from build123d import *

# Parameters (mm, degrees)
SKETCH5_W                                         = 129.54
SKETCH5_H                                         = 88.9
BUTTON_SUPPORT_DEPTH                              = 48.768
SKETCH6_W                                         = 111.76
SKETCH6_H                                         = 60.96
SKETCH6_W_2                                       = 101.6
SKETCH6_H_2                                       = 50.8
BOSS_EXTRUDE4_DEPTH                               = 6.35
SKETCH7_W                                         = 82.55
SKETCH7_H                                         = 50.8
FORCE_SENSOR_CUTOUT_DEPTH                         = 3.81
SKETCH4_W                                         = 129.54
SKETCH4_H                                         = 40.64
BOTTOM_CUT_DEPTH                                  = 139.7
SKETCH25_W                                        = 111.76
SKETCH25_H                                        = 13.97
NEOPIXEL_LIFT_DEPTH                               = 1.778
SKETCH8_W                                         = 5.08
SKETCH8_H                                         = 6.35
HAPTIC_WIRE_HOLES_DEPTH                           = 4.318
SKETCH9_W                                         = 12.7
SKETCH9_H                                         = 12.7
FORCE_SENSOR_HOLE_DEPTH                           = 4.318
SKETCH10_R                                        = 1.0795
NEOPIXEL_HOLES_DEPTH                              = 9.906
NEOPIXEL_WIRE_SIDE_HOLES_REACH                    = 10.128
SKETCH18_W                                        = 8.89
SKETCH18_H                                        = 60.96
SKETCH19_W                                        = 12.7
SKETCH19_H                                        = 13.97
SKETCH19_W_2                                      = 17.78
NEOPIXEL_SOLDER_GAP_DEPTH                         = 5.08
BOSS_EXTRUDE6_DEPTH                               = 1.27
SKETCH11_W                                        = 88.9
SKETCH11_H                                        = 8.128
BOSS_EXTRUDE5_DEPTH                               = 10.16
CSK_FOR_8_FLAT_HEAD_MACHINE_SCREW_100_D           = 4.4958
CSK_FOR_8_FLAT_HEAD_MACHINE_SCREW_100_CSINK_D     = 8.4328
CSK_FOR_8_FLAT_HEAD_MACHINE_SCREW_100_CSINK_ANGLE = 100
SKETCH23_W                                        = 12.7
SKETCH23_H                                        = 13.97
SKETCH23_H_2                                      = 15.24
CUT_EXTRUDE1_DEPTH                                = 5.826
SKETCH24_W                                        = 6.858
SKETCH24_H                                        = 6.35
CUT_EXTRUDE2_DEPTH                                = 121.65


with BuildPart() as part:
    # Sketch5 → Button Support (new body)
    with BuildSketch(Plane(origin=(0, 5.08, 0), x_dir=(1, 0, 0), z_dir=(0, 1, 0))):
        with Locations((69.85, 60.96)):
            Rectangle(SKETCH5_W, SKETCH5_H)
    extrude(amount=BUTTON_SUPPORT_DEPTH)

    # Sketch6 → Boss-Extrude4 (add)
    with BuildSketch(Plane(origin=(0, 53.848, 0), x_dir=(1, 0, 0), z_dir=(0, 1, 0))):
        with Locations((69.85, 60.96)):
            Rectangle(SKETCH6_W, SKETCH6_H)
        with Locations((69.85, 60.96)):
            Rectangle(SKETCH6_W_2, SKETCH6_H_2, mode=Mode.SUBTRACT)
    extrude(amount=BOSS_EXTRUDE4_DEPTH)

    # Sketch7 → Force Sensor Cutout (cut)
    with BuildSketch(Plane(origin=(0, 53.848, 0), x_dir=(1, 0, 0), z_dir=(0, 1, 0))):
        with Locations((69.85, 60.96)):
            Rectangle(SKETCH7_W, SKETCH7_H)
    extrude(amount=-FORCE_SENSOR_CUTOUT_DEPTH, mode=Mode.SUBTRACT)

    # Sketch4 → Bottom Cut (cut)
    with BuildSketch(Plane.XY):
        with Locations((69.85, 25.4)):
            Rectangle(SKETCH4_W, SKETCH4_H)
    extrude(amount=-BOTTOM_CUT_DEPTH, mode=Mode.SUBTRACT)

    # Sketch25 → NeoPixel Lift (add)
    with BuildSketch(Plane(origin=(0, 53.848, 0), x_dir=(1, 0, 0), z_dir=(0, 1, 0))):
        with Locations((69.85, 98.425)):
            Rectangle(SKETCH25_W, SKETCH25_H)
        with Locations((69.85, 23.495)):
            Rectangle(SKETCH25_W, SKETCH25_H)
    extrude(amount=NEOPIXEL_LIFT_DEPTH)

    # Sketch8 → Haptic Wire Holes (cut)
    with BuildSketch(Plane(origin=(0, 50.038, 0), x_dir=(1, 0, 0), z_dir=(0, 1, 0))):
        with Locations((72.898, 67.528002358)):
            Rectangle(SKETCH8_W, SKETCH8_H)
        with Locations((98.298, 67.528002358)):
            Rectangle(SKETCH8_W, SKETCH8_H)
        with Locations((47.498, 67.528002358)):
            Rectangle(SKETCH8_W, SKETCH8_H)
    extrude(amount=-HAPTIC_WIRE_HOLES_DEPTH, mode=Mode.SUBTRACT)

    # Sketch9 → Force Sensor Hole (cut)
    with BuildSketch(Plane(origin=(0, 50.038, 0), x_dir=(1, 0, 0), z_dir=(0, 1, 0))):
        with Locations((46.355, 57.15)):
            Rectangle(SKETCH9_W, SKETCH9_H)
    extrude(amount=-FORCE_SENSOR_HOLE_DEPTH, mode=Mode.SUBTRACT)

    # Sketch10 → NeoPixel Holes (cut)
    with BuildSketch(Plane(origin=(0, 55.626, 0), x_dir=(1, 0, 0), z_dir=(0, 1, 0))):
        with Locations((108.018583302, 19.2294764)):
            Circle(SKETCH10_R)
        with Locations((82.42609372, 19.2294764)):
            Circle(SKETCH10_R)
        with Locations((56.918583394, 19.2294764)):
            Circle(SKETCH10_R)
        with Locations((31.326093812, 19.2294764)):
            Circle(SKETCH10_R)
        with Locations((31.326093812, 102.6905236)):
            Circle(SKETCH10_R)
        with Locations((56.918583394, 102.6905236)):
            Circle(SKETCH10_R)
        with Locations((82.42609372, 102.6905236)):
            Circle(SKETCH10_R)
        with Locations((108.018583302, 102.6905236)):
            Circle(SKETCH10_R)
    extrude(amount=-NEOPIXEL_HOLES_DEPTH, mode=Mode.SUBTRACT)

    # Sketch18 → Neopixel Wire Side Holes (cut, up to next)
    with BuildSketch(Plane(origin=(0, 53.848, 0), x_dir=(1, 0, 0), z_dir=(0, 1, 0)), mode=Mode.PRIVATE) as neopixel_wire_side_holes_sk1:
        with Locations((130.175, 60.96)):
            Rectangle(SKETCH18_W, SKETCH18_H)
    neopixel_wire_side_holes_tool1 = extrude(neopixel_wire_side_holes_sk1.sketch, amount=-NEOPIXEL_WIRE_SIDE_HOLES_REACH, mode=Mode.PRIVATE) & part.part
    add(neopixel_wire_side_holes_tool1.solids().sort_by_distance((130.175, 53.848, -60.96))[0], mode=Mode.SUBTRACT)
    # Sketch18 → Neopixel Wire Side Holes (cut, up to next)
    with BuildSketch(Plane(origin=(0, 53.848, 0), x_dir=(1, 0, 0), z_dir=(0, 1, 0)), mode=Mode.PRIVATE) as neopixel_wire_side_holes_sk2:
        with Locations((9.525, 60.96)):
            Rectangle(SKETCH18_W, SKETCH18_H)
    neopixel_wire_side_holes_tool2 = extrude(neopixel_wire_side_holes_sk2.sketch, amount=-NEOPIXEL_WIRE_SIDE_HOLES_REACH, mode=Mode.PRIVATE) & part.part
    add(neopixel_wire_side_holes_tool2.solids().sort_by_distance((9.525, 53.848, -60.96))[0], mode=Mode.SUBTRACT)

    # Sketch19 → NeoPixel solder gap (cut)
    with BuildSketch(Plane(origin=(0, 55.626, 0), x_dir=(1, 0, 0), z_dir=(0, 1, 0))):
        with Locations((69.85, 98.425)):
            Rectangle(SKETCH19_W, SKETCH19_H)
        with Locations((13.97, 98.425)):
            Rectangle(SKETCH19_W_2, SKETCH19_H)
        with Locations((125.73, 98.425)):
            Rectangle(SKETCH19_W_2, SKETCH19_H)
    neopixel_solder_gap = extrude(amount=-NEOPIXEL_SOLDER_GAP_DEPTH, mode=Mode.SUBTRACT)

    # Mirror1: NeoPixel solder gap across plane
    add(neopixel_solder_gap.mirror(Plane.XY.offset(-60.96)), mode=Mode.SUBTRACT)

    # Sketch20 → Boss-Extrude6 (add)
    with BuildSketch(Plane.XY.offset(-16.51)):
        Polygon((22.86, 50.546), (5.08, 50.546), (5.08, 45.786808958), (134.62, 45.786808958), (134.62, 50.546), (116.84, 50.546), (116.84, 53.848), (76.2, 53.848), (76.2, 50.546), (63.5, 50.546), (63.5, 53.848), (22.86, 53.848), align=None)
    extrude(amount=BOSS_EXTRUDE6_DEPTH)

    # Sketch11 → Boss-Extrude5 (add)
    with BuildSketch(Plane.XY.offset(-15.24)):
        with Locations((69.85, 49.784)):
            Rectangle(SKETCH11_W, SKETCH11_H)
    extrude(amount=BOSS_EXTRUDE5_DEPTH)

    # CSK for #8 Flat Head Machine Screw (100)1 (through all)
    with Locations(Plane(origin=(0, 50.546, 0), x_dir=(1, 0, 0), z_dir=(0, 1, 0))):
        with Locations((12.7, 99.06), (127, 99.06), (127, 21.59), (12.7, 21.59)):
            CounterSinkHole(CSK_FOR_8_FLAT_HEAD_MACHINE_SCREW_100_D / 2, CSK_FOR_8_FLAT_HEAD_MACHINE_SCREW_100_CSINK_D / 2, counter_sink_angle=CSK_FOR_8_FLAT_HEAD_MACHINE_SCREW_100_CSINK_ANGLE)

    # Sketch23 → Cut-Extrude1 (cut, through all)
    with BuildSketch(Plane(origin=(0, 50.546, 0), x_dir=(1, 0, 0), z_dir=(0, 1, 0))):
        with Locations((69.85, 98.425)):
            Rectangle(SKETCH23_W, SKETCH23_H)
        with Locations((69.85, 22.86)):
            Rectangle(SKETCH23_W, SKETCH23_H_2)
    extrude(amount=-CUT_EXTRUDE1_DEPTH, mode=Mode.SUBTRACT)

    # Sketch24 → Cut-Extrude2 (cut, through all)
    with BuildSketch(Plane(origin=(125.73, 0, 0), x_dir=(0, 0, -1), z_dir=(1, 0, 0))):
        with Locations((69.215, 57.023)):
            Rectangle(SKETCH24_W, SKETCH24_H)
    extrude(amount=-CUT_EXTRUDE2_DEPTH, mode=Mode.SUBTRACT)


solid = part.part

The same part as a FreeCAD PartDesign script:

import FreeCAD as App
import Part
import Sketcher

V = App.Vector
Q = App.Units.Quantity

doc = App.newDocument("Part")
params = doc.addObject("Spreadsheet::Sheet", "Params")
for row, (alias, value) in enumerate([
    ("sketch1_width", "5.1 in"),
    ("sketch1_height", "3.5 in"),
    ("pad1_length", "1.92 in"),
    ("sketch2_width", "4 in"),
    ("sketch2_height", "2 in"),
    ("sketch2_width2", "4.4 in"),
    ("sketch2_height2", "2.4 in"),
    ("pad2_length", "0.25 in"),
    ("sketch3_height", "2 in"),
    ("sketch3_width", "3.25 in"),
    ("pocket1_length", "0.15 in"),
    ("sketch4_width", "5.1 in"),
    ("sketch4_height", "1.6 in"),
    ("pocket2_length", "5.5 in"),
    ("sketch5_width", "4.4 in"),
    ("sketch5_height", "0.55 in"),
    ("pad3_length", "0.07 in"),
    ("sketch6_width", "0.2 in"),
    ("sketch6_height", "0.25 in"),
    ("pocket3_length", "0.17 in"),
    ("sketch7_width", "0.5 in"),
    ("pocket4_length", "0.17 in"),
    ("sketch8_diameter", "0.085 in"),
    ("pocket5_length", "0.39 in"),
    ("sketch9_height", "2.4 in"),
    ("sketch9_width", "0.35 in"),
    ("sketch10_height", "2.4 in"),
    ("sketch10_width", "0.35 in"),
    ("sketch11_width", "0.5 in"),
    ("sketch11_width2", "0.7 in"),
    ("sketch11_height", "0.55 in"),
    ("pocket8_length", "0.2 in"),
    ("sketch12_width", "0.7 in"),
    ("sketch12_width2", "5.1 in"),
    ("sketch12_width3", "1.6 in"),
    ("sketch12_height", "0.13 in"),
    ("pad4_length", "0.05 in"),
    ("sketch13_width", "3.5 in"),
    ("sketch13_height", "0.32 in"),
    ("pad5_length", "0.4 in"),
    ("sketch14_diameter", "0.177 in"),
    ("hole_diameter", "0.177 in"),
    ("hole_csink_diameter", "0.332 in"),
    ("sketch15_width", "0.5 in"),
    ("sketch15_height", "0.6 in"),
    ("sketch15_height2", "0.55 in"),
    ("sketch16_width", "0.25 in"),
    ("sketch16_height", "0.27 in"),
], start=1):
    params.set(f"A{row}", alias)
    params.set(f"B{row}", "=" + value)
    params.setAlias(f"B{row}", alias)

body = doc.addObject("PartDesign::Body", "Body")

# Sketch on XZ plane
sketch1 = doc.addObject("Sketcher::SketchObject", "Sketch")
body.addObject(sketch1)
sketch1.AttachmentSupport = (doc.XZ_Plane, [""])
sketch1.MapMode = "FlatFace"
sketch1.AttachmentOffset = App.Placement(V(0, 0, -0.2 * 25.4), App.Rotation())
sketch1.addGeometry([
    Part.LineSegment(V(5, -105, 0), V(5, -17, 0)),
    Part.LineSegment(V(5, -17, 0), V(135, -17, 0)),
    Part.LineSegment(V(135, -17, 0), V(135, -105, 0)),
    Part.LineSegment(V(135, -105, 0), V(5, -105, 0)),
], False)
sketch1.addConstraint([
    Sketcher.Constraint("Coincident", 0, 2, 1, 1),
    Sketcher.Constraint("Coincident", 1, 2, 2, 1),
    Sketcher.Constraint("Coincident", 2, 2, 3, 1),
    Sketcher.Constraint("Coincident", 3, 2, 0, 1),
    Sketcher.Constraint("Vertical", 0),
    Sketcher.Constraint("Horizontal", 1),
    Sketcher.Constraint("Vertical", 2),
    Sketcher.Constraint("Horizontal", 3),
    Sketcher.Constraint("DistanceX", 1, 1, 1, 2, Q("5.1 in")),
    Sketcher.Constraint("DistanceY", 0, 1, 0, 2, Q("3.5 in")),
    Sketcher.Constraint("DistanceX", -1, 1, 0, 2, Q("0.2 in")),
    Sketcher.Constraint("DistanceY", 0, 2, -1, 1, Q("0.65 in")),
])
sketch1.setExpression("Constraints[8]", "Params.sketch1_width")
sketch1.setExpression("Constraints[9]", "Params.sketch1_height")
pad1 = doc.addObject("PartDesign::Pad", "Pad")
body.addObject(pad1)
pad1.Profile = sketch1
pad1.setExpression("Length", "Params.pad1_length")
pad1.Reversed = True

# Sketch on XZ plane
sketch2 = doc.addObject("Sketcher::SketchObject", "Sketch001")
body.addObject(sketch2)
sketch2.AttachmentSupport = (doc.XZ_Plane, [""])
sketch2.MapMode = "FlatFace"
sketch2.AttachmentOffset = App.Placement(V(0, 0, -2.12 * 25.4), App.Rotation())
sketch2.addGeometry([
    Part.LineSegment(V(14, -91, 0), V(14, -30, 0)),  # 0
    Part.LineSegment(V(14, -30, 0), V(126, -30, 0)),  # 1
    Part.LineSegment(V(126, -30, 0), V(126, -91, 0)),  # 2
    Part.LineSegment(V(126, -91, 0), V(14, -91, 0)),  # 3
    Part.LineSegment(V(121, -36, 0), V(19, -36, 0)),  # 4
    Part.LineSegment(V(19, -36, 0), V(19, -86, 0)),  # 5
    Part.LineSegment(V(19, -86, 0), V(121, -86, 0)),  # 6
    Part.LineSegment(V(121, -86, 0), V(121, -36, 0)),  # 7
], False)
sketch2.addConstraint([
    Sketcher.Constraint("Coincident", 0, 2, 1, 1),
    Sketcher.Constraint("Coincident", 1, 2, 2, 1),
    Sketcher.Constraint("Coincident", 2, 2, 3, 1),
    Sketcher.Constraint("Coincident", 3, 2, 0, 1),
    Sketcher.Constraint("Coincident", 4, 2, 5, 1),
    Sketcher.Constraint("Coincident", 5, 2, 6, 1),
    Sketcher.Constraint("Coincident", 6, 2, 7, 1),
    Sketcher.Constraint("Coincident", 7, 2, 4, 1),
    Sketcher.Constraint("Vertical", 0),
    Sketcher.Constraint("Horizontal", 1),
    Sketcher.Constraint("Vertical", 2),
    Sketcher.Constraint("Horizontal", 3),
    Sketcher.Constraint("Horizontal", 4),
    Sketcher.Constraint("Vertical", 5),
    Sketcher.Constraint("Horizontal", 6),
    Sketcher.Constraint("Vertical", 7),
    Sketcher.Constraint("DistanceX", 4, 2, 4, 1, Q("4 in")),
    Sketcher.Constraint("DistanceY", 5, 2, 5, 1, Q("2 in")),
    Sketcher.Constraint("DistanceX", 1, 1, 1, 2, Q("4.4 in")),
    Sketcher.Constraint("DistanceY", 0, 1, 0, 2, Q("2.4 in")),
    Sketcher.Constraint("DistanceY", 0, 2, -1, 1, Q("1.2 in")),
    Sketcher.Constraint("DistanceY", 4, 2, -1, 1, Q("1.4 in")),
    Sketcher.Constraint("DistanceX", 0, 2, 4, 2, Q("0.2 in")),
    Sketcher.Constraint("DistanceX", -1, 1, 0, 2, Q("0.55 in")),
])
sketch2.setExpression("Constraints[16]", "Params.sketch2_width")
sketch2.setExpression("Constraints[17]", "Params.sketch2_height")
sketch2.setExpression("Constraints[18]", "Params.sketch2_width2")
sketch2.setExpression("Constraints[19]", "Params.sketch2_height2")
pad2 = doc.addObject("PartDesign::Pad", "Pad001")
body.addObject(pad2)
pad2.Profile = sketch2
pad2.setExpression("Length", "Params.pad2_length")
pad2.Reversed = True

# Sketch on XZ plane
sketch3 = doc.addObject("Sketcher::SketchObject", "Sketch002")
body.addObject(sketch3)
sketch3.AttachmentSupport = (doc.XZ_Plane, [""])
sketch3.MapMode = "FlatFace"
sketch3.AttachmentOffset = App.Placement(V(0, 0, -2.12 * 25.4), App.Rotation())
sketch3.addGeometry([
    Part.LineSegment(V(29, -86, 0), V(29, -36, 0)),
    Part.LineSegment(V(29, -36, 0), V(111, -36, 0)),
    Part.LineSegment(V(111, -36, 0), V(111, -86, 0)),
    Part.LineSegment(V(111, -86, 0), V(29, -86, 0)),
], False)
sketch3.addConstraint([
    Sketcher.Constraint("Coincident", 0, 2, 1, 1),
    Sketcher.Constraint("Coincident", 1, 2, 2, 1),
    Sketcher.Constraint("Coincident", 2, 2, 3, 1),
    Sketcher.Constraint("Coincident", 3, 2, 0, 1),
    Sketcher.Constraint("Vertical", 0),
    Sketcher.Constraint("Horizontal", 1),
    Sketcher.Constraint("Vertical", 2),
    Sketcher.Constraint("Horizontal", 3),
    Sketcher.Constraint("DistanceY", 0, 1, 0, 2, Q("2 in")),
    Sketcher.Constraint("DistanceX", 1, 1, 1, 2, Q("3.25 in")),
    Sketcher.Constraint("DistanceY", 0, 2, -1, 1, Q("1.4 in")),
    Sketcher.Constraint("DistanceX", -1, 1, 0, 2, Q("1.125 in")),
])
sketch3.setExpression("Constraints[8]", "Params.sketch3_height")
sketch3.setExpression("Constraints[9]", "Params.sketch3_width")
pocket1 = doc.addObject("PartDesign::Pocket", "Pocket")
body.addObject(pocket1)
pocket1.Profile = sketch3
pocket1.setExpression("Length", "Params.pocket1_length")
pocket1.Reversed = True

# Sketch on XY plane
sketch4 = doc.addObject("Sketcher::SketchObject", "Sketch003")
body.addObject(sketch4)
sketch4.AttachmentSupport = (doc.XY_Plane, [""])
sketch4.MapMode = "FlatFace"
sketch4.addGeometry([
    Part.LineSegment(V(5, 46, 0), V(5, 5, 0)),
    Part.LineSegment(V(5, 5, 0), V(135, 5, 0)),
    Part.LineSegment(V(135, 5, 0), V(135, 46, 0)),
    Part.LineSegment(V(135, 46, 0), V(5, 46, 0)),
], False)
sketch4.addConstraint([
    Sketcher.Constraint("Coincident", 0, 2, 1, 1),
    Sketcher.Constraint("Coincident", 1, 2, 2, 1),
    Sketcher.Constraint("Coincident", 2, 2, 3, 1),
    Sketcher.Constraint("Coincident", 3, 2, 0, 1),
    Sketcher.Constraint("Vertical", 0),
    Sketcher.Constraint("Horizontal", 1),
    Sketcher.Constraint("Vertical", 2),
    Sketcher.Constraint("Horizontal", 3),
    Sketcher.Constraint("DistanceX", 1, 1, 1, 2, Q("5.1 in")),
    Sketcher.Constraint("DistanceY", 0, 2, 0, 1, Q("1.6 in")),
    Sketcher.Constraint("DistanceX", -1, 1, 0, 2, Q("0.2 in")),
    Sketcher.Constraint("DistanceY", -1, 1, 0, 2, Q("0.2 in")),
])
sketch4.setExpression("Constraints[8]", "Params.sketch4_width")
sketch4.setExpression("Constraints[9]", "Params.sketch4_height")
pocket2 = doc.addObject("PartDesign::Pocket", "Pocket001")
body.addObject(pocket2)
pocket2.Profile = sketch4
pocket2.setExpression("Length", "Params.pocket2_length")

# Sketch on XZ plane
sketch5 = doc.addObject("Sketcher::SketchObject", "Sketch004")
body.addObject(sketch5)
sketch5.AttachmentSupport = (doc.XZ_Plane, [""])
sketch5.MapMode = "FlatFace"
sketch5.AttachmentOffset = App.Placement(V(0, 0, -2.12 * 25.4), App.Rotation())
sketch5.addGeometry([
    Part.LineSegment(V(14, -105, 0), V(14, -91, 0)),  # 0
    Part.LineSegment(V(14, -91, 0), V(126, -91, 0)),  # 1
    Part.LineSegment(V(126, -91, 0), V(126, -105, 0)),  # 2
    Part.LineSegment(V(126, -105, 0), V(14, -105, 0)),  # 3
    Part.LineSegment(V(14, -30, 0), V(14, -17, 0)),  # 4
    Part.LineSegment(V(14, -17, 0), V(126, -17, 0)),  # 5
    Part.LineSegment(V(126, -17, 0), V(126, -30, 0)),  # 6
    Part.LineSegment(V(126, -30, 0), V(14, -30, 0)),  # 7
], False)
sketch5.addConstraint([
    Sketcher.Constraint("Coincident", 0, 2, 1, 1),
    Sketcher.Constraint("Coincident", 1, 2, 2, 1),
    Sketcher.Constraint("Coincident", 2, 2, 3, 1),
    Sketcher.Constraint("Coincident", 3, 2, 0, 1),
    Sketcher.Constraint("Coincident", 4, 2, 5, 1),
    Sketcher.Constraint("Coincident", 5, 2, 6, 1),
    Sketcher.Constraint("Coincident", 6, 2, 7, 1),
    Sketcher.Constraint("Coincident", 7, 2, 4, 1),
    Sketcher.Constraint("Vertical", 0),
    Sketcher.Constraint("Horizontal", 1),
    Sketcher.Constraint("Vertical", 2),
    Sketcher.Constraint("Horizontal", 3),
    Sketcher.Constraint("Vertical", 4),
    Sketcher.Constraint("Horizontal", 5),
    Sketcher.Constraint("Vertical", 6),
    Sketcher.Constraint("Horizontal", 7),
    Sketcher.Constraint("Vertical", 3, 2, 4, 2),
    Sketcher.Constraint("Vertical", 2, 2, 5, 2),
    Sketcher.Constraint("Equal", 2, 4),
    Sketcher.Constraint("DistanceX", 1, 1, 1, 2, Q("4.4 in")),
    Sketcher.Constraint("DistanceY", 0, 1, 0, 2, Q("0.55 in")),
    Sketcher.Constraint("DistanceY", 0, 2, -1, 1, Q("3.6 in")),
    Sketcher.Constraint("DistanceY", 6, 2, -1, 1, Q("1.2 in")),
    Sketcher.Constraint("DistanceX", -1, 1, 0, 2, Q("0.55 in")),
])
sketch5.setExpression("Constraints[19]", "Params.sketch5_width")
sketch5.setExpression("Constraints[20]", "Params.sketch5_height")
pad3 = doc.addObject("PartDesign::Pad", "Pad002")
body.addObject(pad3)
pad3.Profile = sketch5
pad3.setExpression("Length", "Params.pad3_length")
pad3.Reversed = True

# Sketch on XZ plane
sketch6 = doc.addObject("Sketcher::SketchObject", "Sketch005")
body.addObject(sketch6)
sketch6.AttachmentSupport = (doc.XZ_Plane, [""])
sketch6.MapMode = "FlatFace"
sketch6.AttachmentOffset = App.Placement(V(0, 0, -1.97 * 25.4), App.Rotation())
sketch6.addGeometry([
    Part.LineSegment(V(70, -71, 0), V(70, -64, 0)),  # 0
    Part.LineSegment(V(70, -64, 0), V(75, -64, 0)),  # 1
    Part.LineSegment(V(75, -64, 0), V(75, -71, 0)),  # 2
    Part.LineSegment(V(75, -71, 0), V(70, -71, 0)),  # 3
    Part.LineSegment(V(96, -71, 0), V(96, -64, 0)),  # 4
    Part.LineSegment(V(96, -64, 0), V(101, -64, 0)),  # 5
    Part.LineSegment(V(101, -64, 0), V(101, -71, 0)),  # 6
    Part.LineSegment(V(101, -71, 0), V(96, -71, 0)),  # 7
    Part.LineSegment(V(45, -71, 0), V(45, -64, 0)),  # 8
    Part.LineSegment(V(45, -64, 0), V(50, -64, 0)),  # 9
    Part.LineSegment(V(50, -64, 0), V(50, -71, 0)),  # 10
    Part.LineSegment(V(50, -71, 0), V(45, -71, 0)),  # 11
], False)
sketch6.addConstraint([
    Sketcher.Constraint("Coincident", 0, 2, 1, 1),
    Sketcher.Constraint("Coincident", 1, 2, 2, 1),
    Sketcher.Constraint("Coincident", 2, 2, 3, 1),
    Sketcher.Constraint("Coincident", 3, 2, 0, 1),
    Sketcher.Constraint("Coincident", 4, 2, 5, 1),
    Sketcher.Constraint("Coincident", 5, 2, 6, 1),
    Sketcher.Constraint("Coincident", 6, 2, 7, 1),
    Sketcher.Constraint("Coincident", 7, 2, 4, 1),
    Sketcher.Constraint("Coincident", 8, 2, 9, 1),
    Sketcher.Constraint("Coincident", 9, 2, 10, 1),
    Sketcher.Constraint("Coincident", 10, 2, 11, 1),
    Sketcher.Constraint("Coincident", 11, 2, 8, 1),
    Sketcher.Constraint("Vertical", 0),
    Sketcher.Constraint("Horizontal", 1),
    Sketcher.Constraint("Vertical", 2),
    Sketcher.Constraint("Horizontal", 3),
    Sketcher.Constraint("Vertical", 4),
    Sketcher.Constraint("Horizontal", 5),
    Sketcher.Constraint("Vertical", 6),
    Sketcher.Constraint("Horizontal", 7),
    Sketcher.Constraint("Vertical", 8),
    Sketcher.Constraint("Horizontal", 9),
    Sketcher.Constraint("Vertical", 10),
    Sketcher.Constraint("Horizontal", 11),
    Sketcher.Constraint("Horizontal", 1, 2, 4, 2),
    Sketcher.Constraint("Horizontal", 3, 2, 6, 2),
    Sketcher.Constraint("Horizontal", 5, 2, 8, 2),
    Sketcher.Constraint("Horizontal", 7, 2, 10, 2),
    Sketcher.Constraint("Equal", 3, 5),
    Sketcher.Constraint("Equal", 7, 9),
    Sketcher.Constraint("DistanceX", 1, 1, 1, 2, Q("0.2 in")),
    Sketcher.Constraint("DistanceX", 0, 2, 4, 2, Q("1 in")),
    Sketcher.Constraint("DistanceX", 8, 2, 0, 2, Q("1 in")),
    Sketcher.Constraint("DistanceY", 0, 1, 0, 2, Q("0.25 in")),
    Sketcher.Constraint("DistanceX", -1, 1, 0, 2, Q("2.77 in")),
    Sketcher.Constraint("DistanceY", 0, 2, -1, 1, 64.353002),
])
sketch6.setExpression("Constraints[30]", "Params.sketch6_width")
sketch6.setExpression("Constraints[33]", "Params.sketch6_height")
pocket3 = doc.addObject("PartDesign::Pocket", "Pocket002")
body.addObject(pocket3)
pocket3.Profile = sketch6
pocket3.setExpression("Length", "Params.pocket3_length")
pocket3.Reversed = True

# Sketch on XZ plane
sketch7 = doc.addObject("Sketcher::SketchObject", "Sketch006")
body.addObject(sketch7)
sketch7.AttachmentSupport = (doc.XZ_Plane, [""])
sketch7.MapMode = "FlatFace"
sketch7.AttachmentOffset = App.Placement(V(0, 0, -1.97 * 25.4), App.Rotation())
sketch7.addGeometry([
    Part.LineSegment(V(40, -64, 0), V(40, -51, 0)),
    Part.LineSegment(V(40, -51, 0), V(53, -51, 0)),
    Part.LineSegment(V(53, -51, 0), V(53, -64, 0)),
    Part.LineSegment(V(53, -64, 0), V(40, -64, 0)),
], False)
sketch7.addConstraint([
    Sketcher.Constraint("Coincident", 0, 2, 1, 1),
    Sketcher.Constraint("Coincident", 1, 2, 2, 1),
    Sketcher.Constraint("Coincident", 2, 2, 3, 1),
    Sketcher.Constraint("Coincident", 3, 2, 0, 1),
    Sketcher.Constraint("Vertical", 0),
    Sketcher.Constraint("Horizontal", 1),
    Sketcher.Constraint("Vertical", 2),
    Sketcher.Constraint("Horizontal", 3),
    Sketcher.Constraint("Equal", 3, 0),
    Sketcher.Constraint("DistanceX", 1, 1, 1, 2, Q("0.5 in")),
    Sketcher.Constraint("DistanceY", 0, 2, -1, 1, Q("2 in")),
    Sketcher.Constraint("DistanceX", -1, 1, 0, 2, Q("1.575 in")),
])
sketch7.setExpression("Constraints[9]", "Params.sketch7_width")
pocket4 = doc.addObject("PartDesign::Pocket", "Pocket003")
body.addObject(pocket4)
pocket4.Profile = sketch7
pocket4.setExpression("Length", "Params.pocket4_length")
pocket4.Reversed = True

# Sketch on XZ plane
sketch8 = doc.addObject("Sketcher::SketchObject", "Sketch007")
body.addObject(sketch8)
sketch8.AttachmentSupport = (doc.XZ_Plane, [""])
sketch8.MapMode = "FlatFace"
sketch8.AttachmentOffset = App.Placement(V(0, 0, -2.19 * 25.4), App.Rotation())
sketch8.addGeometry([
    Part.Circle(V(108, -19.2, 0), V(0, 0, 1), 1.1),  # 0
    Part.Circle(V(82.4, -19.2, 0), V(0, 0, 1), 1.1),  # 1
    Part.Circle(V(56.9, -19.2, 0), V(0, 0, 1), 1.1),  # 2
    Part.Circle(V(31.3, -19.2, 0), V(0, 0, 1), 1.1),  # 3
    Part.Circle(V(31.3, -102.7, 0), V(0, 0, 1), 1.1),  # 4
    Part.Circle(V(56.9, -102.7, 0), V(0, 0, 1), 1.1),  # 5
    Part.Circle(V(82.4, -102.7, 0), V(0, 0, 1), 1.1),  # 6
    Part.Circle(V(108, -102.7, 0), V(0, 0, 1), 1.1),  # 7
], False)
sketch8.addConstraint([
    Sketcher.Constraint("Equal", 0, 1),
    Sketcher.Constraint("Equal", 1, 2),
    Sketcher.Constraint("Equal", 2, 3),
    Sketcher.Constraint("Equal", 3, 4),
    Sketcher.Constraint("Equal", 4, 5),
    Sketcher.Constraint("Equal", 5, 6),
    Sketcher.Constraint("Equal", 6, 7),
    Sketcher.Constraint("Horizontal", 0, 3, 1, 3),
    Sketcher.Constraint("Horizontal", 1, 3, 2, 3),
    Sketcher.Constraint("Horizontal", 2, 3, 3, 3),
    Sketcher.Constraint("Horizontal", 4, 3, 5, 3),
    Sketcher.Constraint("Horizontal", 5, 3, 6, 3),
    Sketcher.Constraint("Horizontal", 6, 3, 7, 3),
    Sketcher.Constraint("Vertical", 3, 3, 4, 3),
    Sketcher.Constraint("Vertical", 2, 3, 5, 3),
    Sketcher.Constraint("Vertical", 1, 3, 6, 3),
    Sketcher.Constraint("Vertical", 0, 3, 7, 3),
    Sketcher.Constraint("Diameter", 0, Q("0.085 in")),
    Sketcher.Constraint("DistanceX", -1, 1, 0, 3, Q("4.2527001 in")),
    Sketcher.Constraint("DistanceX", 2, 3, 0, 3, 51.1),
    Sketcher.Constraint("DistanceX", 3, 3, 1, 3, 51.1),
    Sketcher.Constraint("DistanceX", 1, 3, 0, 3, 25.59249),
    Sketcher.Constraint("DistanceY", 0, 3, -1, 1, 19.229476),
    Sketcher.Constraint("DistanceY", 4, 3, -1, 1, 102.690524),
])
sketch8.setExpression("Constraints[17]", "Params.sketch8_diameter")
pocket5 = doc.addObject("PartDesign::Pocket", "Pocket004")
body.addObject(pocket5)
pocket5.Profile = sketch8
pocket5.setExpression("Length", "Params.pocket5_length")
pocket5.Reversed = True

# Sketch on XZ plane
sketch9 = doc.addObject("Sketcher::SketchObject", "Sketch008")
body.addObject(sketch9)
sketch9.AttachmentSupport = (doc.XZ_Plane, [""])
sketch9.MapMode = "FlatFace"
sketch9.AttachmentOffset = App.Placement(V(0, 0, -2.12 * 25.4), App.Rotation())
sketch9.addGeometry([
    Part.LineSegment(V(126, -91, 0), V(126, -30, 0)),
    Part.LineSegment(V(126, -30, 0), V(135, -30, 0)),
    Part.LineSegment(V(135, -30, 0), V(135, -91, 0)),
    Part.LineSegment(V(135, -91, 0), V(126, -91, 0)),
], False)
sketch9.addConstraint([
    Sketcher.Constraint("Coincident", 0, 2, 1, 1),
    Sketcher.Constraint("Coincident", 1, 2, 2, 1),
    Sketcher.Constraint("Coincident", 2, 2, 3, 1),
    Sketcher.Constraint("Coincident", 3, 2, 0, 1),
    Sketcher.Constraint("Vertical", 0),
    Sketcher.Constraint("Horizontal", 1),
    Sketcher.Constraint("Vertical", 2),
    Sketcher.Constraint("Horizontal", 3),
    Sketcher.Constraint("DistanceY", 0, 1, 0, 2, Q("2.4 in")),
    Sketcher.Constraint("DistanceX", 1, 1, 1, 2, Q("0.35 in")),
    Sketcher.Constraint("DistanceY", 0, 2, -1, 1, Q("1.2 in")),
    Sketcher.Constraint("DistanceX", -1, 1, 1, 2, Q("5.3 in")),
])
sketch9.setExpression("Constraints[8]", "Params.sketch9_height")
sketch9.setExpression("Constraints[9]", "Params.sketch9_width")
pocket6 = doc.addObject("PartDesign::Pocket", "Pocket005")
body.addObject(pocket6)
pocket6.Profile = sketch9
pocket6.Type = "UpToFirst"
pocket6.Reversed = True

# Sketch on XZ plane
sketch10 = doc.addObject("Sketcher::SketchObject", "Sketch009")
body.addObject(sketch10)
sketch10.AttachmentSupport = (doc.XZ_Plane, [""])
sketch10.MapMode = "FlatFace"
sketch10.AttachmentOffset = App.Placement(V(0, 0, -2.12 * 25.4), App.Rotation())
sketch10.addGeometry([
    Part.LineSegment(V(5, -91, 0), V(5, -30, 0)),
    Part.LineSegment(V(5, -30, 0), V(14, -30, 0)),
    Part.LineSegment(V(14, -30, 0), V(14, -91, 0)),
    Part.LineSegment(V(14, -91, 0), V(5, -91, 0)),
], False)
sketch10.addConstraint([
    Sketcher.Constraint("Coincident", 0, 2, 1, 1),
    Sketcher.Constraint("Coincident", 1, 2, 2, 1),
    Sketcher.Constraint("Coincident", 2, 2, 3, 1),
    Sketcher.Constraint("Coincident", 3, 2, 0, 1),
    Sketcher.Constraint("Vertical", 0),
    Sketcher.Constraint("Horizontal", 1),
    Sketcher.Constraint("Vertical", 2),
    Sketcher.Constraint("Horizontal", 3),
    Sketcher.Constraint("DistanceY", 0, 1, 0, 2, Q("2.4 in")),
    Sketcher.Constraint("DistanceX", 1, 1, 1, 2, Q("0.35 in")),
    Sketcher.Constraint("DistanceX", -1, 1, 0, 2, Q("0.2 in")),
    Sketcher.Constraint("DistanceY", 0, 2, -1, 1, Q("1.2 in")),
])
sketch10.setExpression("Constraints[8]", "Params.sketch10_height")
sketch10.setExpression("Constraints[9]", "Params.sketch10_width")
pocket7 = doc.addObject("PartDesign::Pocket", "Pocket006")
body.addObject(pocket7)
pocket7.Profile = sketch10
pocket7.Type = "UpToFirst"
pocket7.Reversed = True

# Sketch on XZ plane
sketch11 = doc.addObject("Sketcher::SketchObject", "Sketch010")
body.addObject(sketch11)
sketch11.AttachmentSupport = (doc.XZ_Plane, [""])
sketch11.MapMode = "FlatFace"
sketch11.AttachmentOffset = App.Placement(V(0, 0, -2.19 * 25.4), App.Rotation())
sketch11.addGeometry([
    Part.LineSegment(V(64, -105, 0), V(64, -91, 0)),  # 0
    Part.LineSegment(V(64, -91, 0), V(76, -91, 0)),  # 1
    Part.LineSegment(V(76, -91, 0), V(76, -105, 0)),  # 2
    Part.LineSegment(V(76, -105, 0), V(64, -105, 0)),  # 3
    Part.LineSegment(V(5, -105, 0), V(5, -91, 0)),  # 4
    Part.LineSegment(V(5, -91, 0), V(23, -91, 0)),  # 5
    Part.LineSegment(V(23, -91, 0), V(23, -105, 0)),  # 6
    Part.LineSegment(V(23, -105, 0), V(5, -105, 0)),  # 7
    Part.LineSegment(V(117, -105, 0), V(117, -91, 0)),  # 8
    Part.LineSegment(V(117, -91, 0), V(135, -91, 0)),  # 9
    Part.LineSegment(V(135, -91, 0), V(135, -105, 0)),  # 10
    Part.LineSegment(V(135, -105, 0), V(117, -105, 0)),  # 11
], False)
sketch11.addConstraint([
    Sketcher.Constraint("Coincident", 0, 2, 1, 1),
    Sketcher.Constraint("Coincident", 1, 2, 2, 1),
    Sketcher.Constraint("Coincident", 2, 2, 3, 1),
    Sketcher.Constraint("Coincident", 3, 2, 0, 1),
    Sketcher.Constraint("Coincident", 4, 2, 5, 1),
    Sketcher.Constraint("Coincident", 5, 2, 6, 1),
    Sketcher.Constraint("Coincident", 6, 2, 7, 1),
    Sketcher.Constraint("Coincident", 7, 2, 4, 1),
    Sketcher.Constraint("Coincident", 8, 2, 9, 1),
    Sketcher.Constraint("Coincident", 9, 2, 10, 1),
    Sketcher.Constraint("Coincident", 10, 2, 11, 1),
    Sketcher.Constraint("Coincident", 11, 2, 8, 1),
    Sketcher.Constraint("Vertical", 0),
    Sketcher.Constraint("Horizontal", 1),
    Sketcher.Constraint("Vertical", 2),
    Sketcher.Constraint("Horizontal", 3),
    Sketcher.Constraint("Vertical", 4),
    Sketcher.Constraint("Horizontal", 5),
    Sketcher.Constraint("Vertical", 6),
    Sketcher.Constraint("Horizontal", 7),
    Sketcher.Constraint("Vertical", 8),
    Sketcher.Constraint("Horizontal", 9),
    Sketcher.Constraint("Vertical", 10),
    Sketcher.Constraint("Horizontal", 11),
    Sketcher.Constraint("Horizontal", 1, 2, 4, 2),
    Sketcher.Constraint("Horizontal", 3, 2, 6, 2),
    Sketcher.Constraint("Horizontal", 5, 2, 8, 2),
    Sketcher.Constraint("Horizontal", 7, 2, 10, 2),
    Sketcher.Constraint("Equal", 7, 9),
    Sketcher.Constraint("DistanceX", 1, 1, 1, 2, Q("0.5 in")),
    Sketcher.Constraint("DistanceX", 5, 1, 5, 2, Q("0.7 in")),
    Sketcher.Constraint("DistanceX", -1, 1, 1, 2, Q("3 in")),
    Sketcher.Constraint("DistanceY", 0, 1, 0, 2, Q("0.55 in")),
    Sketcher.Constraint("DistanceY", 0, 2, -1, 1, Q("3.6 in")),
    Sketcher.Constraint("DistanceX", -1, 1, 4, 2, Q("0.2 in")),
    Sketcher.Constraint("DistanceX", -1, 1, 8, 2, Q("4.6 in")),
])
sketch11.setExpression("Constraints[29]", "Params.sketch11_width")
sketch11.setExpression("Constraints[30]", "Params.sketch11_width2")
sketch11.setExpression("Constraints[32]", "Params.sketch11_height")
pocket8 = doc.addObject("PartDesign::Pocket", "Pocket007")
body.addObject(pocket8)
pocket8.Profile = sketch11
pocket8.setExpression("Length", "Params.pocket8_length")
pocket8.Reversed = True
doc.recompute()

datumplane = doc.addObject("PartDesign::Plane", "DatumPlane")
body.addObject(datumplane)
datumplane.AttachmentSupport = (doc.XY_Plane, [""])
datumplane.MapMode = "FlatFace"
datumplane.AttachmentOffset = App.Placement(V(0, 0, -2.4 * 25.4), App.Rotation())
mirrored = doc.addObject("PartDesign::Mirrored", "Mirrored")
body.addObject(mirrored)
mirrored.Originals = [pocket8]
mirrored.MirrorPlane = (datumplane, [""])
body.Tip = mirrored

# Sketch on XY plane
sketch12 = doc.addObject("Sketcher::SketchObject", "Sketch011")
body.addObject(sketch12)
sketch12.AttachmentSupport = (doc.XY_Plane, [""])
sketch12.MapMode = "FlatFace"
sketch12.AttachmentOffset = App.Placement(V(0, 0, -0.65 * 25.4), App.Rotation())
sketch12.addGeometry([
    Part.LineSegment(V(22.9, 50.5, 0), V(5.1, 50.5, 0)),  # 0
    Part.LineSegment(V(5.1, 50.5, 0), V(5.1, 45.8, 0)),  # 1
    Part.LineSegment(V(5.1, 45.8, 0), V(134.6, 45.8, 0)),  # 2
    Part.LineSegment(V(134.6, 45.8, 0), V(134.6, 50.5, 0)),  # 3
    Part.LineSegment(V(134.6, 50.5, 0), V(116.8, 50.5, 0)),  # 4
    Part.LineSegment(V(116.8, 50.5, 0), V(116.8, 53.8, 0)),  # 5
    Part.LineSegment(V(116.8, 53.8, 0), V(76.2, 53.8, 0)),  # 6
    Part.LineSegment(V(76.2, 53.8, 0), V(76.2, 50.5, 0)),  # 7
    Part.LineSegment(V(76.2, 50.5, 0), V(63.5, 50.5, 0)),  # 8
    Part.LineSegment(V(63.5, 50.5, 0), V(63.5, 53.8, 0)),  # 9
    Part.LineSegment(V(63.5, 53.8, 0), V(22.9, 53.8, 0)),  # 10
    Part.LineSegment(V(22.9, 53.8, 0), V(22.9, 50.5, 0)),  # 11
], False)
sketch12.addConstraint([
    Sketcher.Constraint("Coincident", 0, 2, 1, 1),
    Sketcher.Constraint("Coincident", 1, 2, 2, 1),
    Sketcher.Constraint("Coincident", 2, 2, 3, 1),
    Sketcher.Constraint("Coincident", 3, 2, 4, 1),
    Sketcher.Constraint("Coincident", 4, 2, 5, 1),
    Sketcher.Constraint("Coincident", 5, 2, 6, 1),
    Sketcher.Constraint("Coincident", 6, 2, 7, 1),
    Sketcher.Constraint("Coincident", 7, 2, 8, 1),
    Sketcher.Constraint("Coincident", 8, 2, 9, 1),
    Sketcher.Constraint("Coincident", 9, 2, 10, 1),
    Sketcher.Constraint("Coincident", 10, 2, 11, 1),
    Sketcher.Constraint("Coincident", 11, 2, 0, 1),
    Sketcher.Constraint("Horizontal", 0),
    Sketcher.Constraint("Vertical", 1),
    Sketcher.Constraint("Horizontal", 2),
    Sketcher.Constraint("Vertical", 3),
    Sketcher.Constraint("Horizontal", 4),
    Sketcher.Constraint("Vertical", 5),
    Sketcher.Constraint("Horizontal", 6),
    Sketcher.Constraint("Vertical", 7),
    Sketcher.Constraint("Horizontal", 8),
    Sketcher.Constraint("Vertical", 9),
    Sketcher.Constraint("Horizontal", 10),
    Sketcher.Constraint("Vertical", 11),
    Sketcher.Constraint("Horizontal", 0, 2, 3, 2),
    Sketcher.Constraint("Horizontal", 4, 2, 7, 2),
    Sketcher.Constraint("Horizontal", 6, 2, 9, 2),
    Sketcher.Constraint("Equal", 0, 4),
    Sketcher.Constraint("Equal", 6, 10),
    Sketcher.Constraint("DistanceX", 0, 2, 0, 1, Q("0.7 in")),
    Sketcher.Constraint("DistanceX", 2, 1, 2, 2, Q("5.1 in")),
    Sketcher.Constraint("DistanceX", 6, 2, 6, 1, Q("1.6 in")),
    Sketcher.Constraint("DistanceX", -1, 1, 6, 2, Q("3 in")),
    Sketcher.Constraint("DistanceY", 5, 1, 5, 2, Q("0.13 in")),
    Sketcher.Constraint("DistanceY", -1, 1, 0, 2, Q("1.99 in")),
    Sketcher.Constraint("DistanceY", 1, 2, 1, 1, 4.759191),
])
sketch12.setExpression("Constraints[29]", "Params.sketch12_width")
sketch12.setExpression("Constraints[30]", "Params.sketch12_width2")
sketch12.setExpression("Constraints[31]", "Params.sketch12_width3")
sketch12.setExpression("Constraints[33]", "Params.sketch12_height")
pad4 = doc.addObject("PartDesign::Pad", "Pad003")
body.addObject(pad4)
pad4.Profile = sketch12
pad4.setExpression("Length", "Params.pad4_length")

# Sketch on XY plane
sketch13 = doc.addObject("Sketcher::SketchObject", "Sketch012")
body.addObject(sketch13)
sketch13.AttachmentSupport = (doc.XY_Plane, [""])
sketch13.MapMode = "FlatFace"
sketch13.AttachmentOffset = App.Placement(V(0, 0, -0.6 * 25.4), App.Rotation())
sketch13.addGeometry([
    Part.LineSegment(V(25, 54, 0), V(25, 46, 0)),
    Part.LineSegment(V(25, 46, 0), V(114, 46, 0)),
    Part.LineSegment(V(114, 46, 0), V(114, 54, 0)),
    Part.LineSegment(V(114, 54, 0), V(25, 54, 0)),
], False)
sketch13.addConstraint([
    Sketcher.Constraint("Coincident", 0, 2, 1, 1),
    Sketcher.Constraint("Coincident", 1, 2, 2, 1),
    Sketcher.Constraint("Coincident", 2, 2, 3, 1),
    Sketcher.Constraint("Coincident", 3, 2, 0, 1),
    Sketcher.Constraint("Vertical", 0),
    Sketcher.Constraint("Horizontal", 1),
    Sketcher.Constraint("Vertical", 2),
    Sketcher.Constraint("Horizontal", 3),
    Sketcher.Constraint("DistanceX", 1, 1, 1, 2, Q("3.5 in")),
    Sketcher.Constraint("DistanceX", -1, 1, 0, 2, Q("1 in")),
    Sketcher.Constraint("DistanceY", 0, 2, 0, 1, Q("0.32 in")),
    Sketcher.Constraint("DistanceY", -1, 1, 0, 2, Q("1.8 in")),
])
sketch13.setExpression("Constraints[8]", "Params.sketch13_width")
sketch13.setExpression("Constraints[10]", "Params.sketch13_height")
pad5 = doc.addObject("PartDesign::Pad", "Pad004")
body.addObject(pad5)
pad5.Profile = sketch13
pad5.setExpression("Length", "Params.pad5_length")

# Sketch on XZ plane
sketch14 = doc.addObject("Sketcher::SketchObject", "Sketch013")
body.addObject(sketch14)
sketch14.AttachmentSupport = (doc.XZ_Plane, [""])
sketch14.MapMode = "FlatFace"
sketch14.AttachmentOffset = App.Placement(V(0, 0, -1.99 * 25.4), App.Rotation())
sketch14.addGeometry([
    Part.Circle(V(12.7, -99.1, 0), V(0, 0, 1), 2.2),
    Part.Circle(V(127, -99.1, 0), V(0, 0, 1), 2.2),
    Part.Circle(V(127, -21.6, 0), V(0, 0, 1), 2.2),
    Part.Circle(V(12.7, -21.6, 0), V(0, 0, 1), 2.2),
], False)
sketch14.addConstraint([
    Sketcher.Constraint("Equal", 0, 1),
    Sketcher.Constraint("Equal", 1, 2),
    Sketcher.Constraint("Equal", 2, 3),
    Sketcher.Constraint("Horizontal", 0, 3, 1, 3),
    Sketcher.Constraint("Horizontal", 2, 3, 3, 3),
    Sketcher.Constraint("Vertical", 1, 3, 2, 3),
    Sketcher.Constraint("Vertical", 0, 3, 3, 3),
    Sketcher.Constraint("Diameter", 0, Q("0.177 in")),
    Sketcher.Constraint("DistanceX", -1, 1, 1, 3, Q("5 in")),
    Sketcher.Constraint("DistanceX", -1, 1, 0, 3, Q("0.5 in")),
    Sketcher.Constraint("DistanceY", 0, 3, -1, 1, Q("3.9 in")),
    Sketcher.Constraint("DistanceY", 2, 3, -1, 1, Q("0.85 in")),
])
sketch14.setExpression("Constraints[7]", "Params.sketch14_diameter")
doc.recompute()
hole = doc.addObject("PartDesign::Hole", "Hole")
body.addObject(hole)
hole.Profile = sketch14
hole.ThreadType = "None"
hole.setExpression("Diameter", "Params.hole_diameter")
hole.DepthType = "ThroughAll"
hole.HoleCutType = "Countersink"
hole.setExpression("HoleCutDiameter", "Params.hole_csink_diameter")
hole.HoleCutCountersinkAngle = 100
hole.Reversed = True

# Sketch on XZ plane
sketch15 = doc.addObject("Sketcher::SketchObject", "Sketch014")
body.addObject(sketch15)
sketch15.AttachmentSupport = (doc.XZ_Plane, [""])
sketch15.MapMode = "FlatFace"
sketch15.AttachmentOffset = App.Placement(V(0, 0, -1.99 * 25.4), App.Rotation())
sketch15.addGeometry([
    Part.LineSegment(V(64, -105, 0), V(64, -91, 0)),  # 0
    Part.LineSegment(V(64, -91, 0), V(76, -91, 0)),  # 1
    Part.LineSegment(V(76, -91, 0), V(76, -105, 0)),  # 2
    Part.LineSegment(V(76, -105, 0), V(64, -105, 0)),  # 3
    Part.LineSegment(V(64, -30, 0), V(64, -15, 0)),  # 4
    Part.LineSegment(V(64, -15, 0), V(76, -15, 0)),  # 5
    Part.LineSegment(V(76, -15, 0), V(76, -30, 0)),  # 6
    Part.LineSegment(V(76, -30, 0), V(64, -30, 0)),  # 7
], False)
sketch15.addConstraint([
    Sketcher.Constraint("Coincident", 0, 2, 1, 1),
    Sketcher.Constraint("Coincident", 1, 2, 2, 1),
    Sketcher.Constraint("Coincident", 2, 2, 3, 1),
    Sketcher.Constraint("Coincident", 3, 2, 0, 1),
    Sketcher.Constraint("Coincident", 4, 2, 5, 1),
    Sketcher.Constraint("Coincident", 5, 2, 6, 1),
    Sketcher.Constraint("Coincident", 6, 2, 7, 1),
    Sketcher.Constraint("Coincident", 7, 2, 4, 1),
    Sketcher.Constraint("Vertical", 0),
    Sketcher.Constraint("Horizontal", 1),
    Sketcher.Constraint("Vertical", 2),
    Sketcher.Constraint("Horizontal", 3),
    Sketcher.Constraint("Vertical", 4),
    Sketcher.Constraint("Horizontal", 5),
    Sketcher.Constraint("Vertical", 6),
    Sketcher.Constraint("Horizontal", 7),
    Sketcher.Constraint("Vertical", 3, 2, 4, 2),
    Sketcher.Constraint("Vertical", 2, 2, 5, 2),
    Sketcher.Constraint("DistanceX", 1, 1, 1, 2, Q("0.5 in")),
    Sketcher.Constraint("DistanceY", 4, 1, 4, 2, Q("0.6 in")),
    Sketcher.Constraint("DistanceX", -1, 1, 1, 2, Q("3 in")),
    Sketcher.Constraint("DistanceY", 0, 2, 4, 2, Q("3 in")),
    Sketcher.Constraint("DistanceY", 0, 1, 0, 2, Q("0.55 in")),
    Sketcher.Constraint("DistanceY", 0, 2, -1, 1, Q("3.6 in")),
])
sketch15.setExpression("Constraints[18]", "Params.sketch15_width")
sketch15.setExpression("Constraints[19]", "Params.sketch15_height")
sketch15.setExpression("Constraints[22]", "Params.sketch15_height2")
pocket9 = doc.addObject("PartDesign::Pocket", "Pocket008")
body.addObject(pocket9)
pocket9.Profile = sketch15
pocket9.Type = "ThroughAll"
pocket9.Reversed = True

# Sketch on YZ plane
sketch16 = doc.addObject("Sketcher::SketchObject", "Sketch015")
body.addObject(sketch16)
sketch16.AttachmentSupport = (doc.YZ_Plane, [""])
sketch16.MapMode = "FlatFace"
sketch16.AttachmentOffset = App.Placement(V(0, 0, 4.95 * 25.4), App.Rotation())
sketch16.addGeometry([
    Part.LineSegment(V(60, -66, 0), V(54, -66, 0)),
    Part.LineSegment(V(54, -66, 0), V(54, -73, 0)),
    Part.LineSegment(V(54, -73, 0), V(60, -73, 0)),
    Part.LineSegment(V(60, -73, 0), V(60, -66, 0)),
], False)
sketch16.addConstraint([
    Sketcher.Constraint("Coincident", 0, 2, 1, 1),
    Sketcher.Constraint("Coincident", 1, 2, 2, 1),
    Sketcher.Constraint("Coincident", 2, 2, 3, 1),
    Sketcher.Constraint("Coincident", 3, 2, 0, 1),
    Sketcher.Constraint("Horizontal", 0),
    Sketcher.Constraint("Vertical", 1),
    Sketcher.Constraint("Horizontal", 2),
    Sketcher.Constraint("Vertical", 3),
    Sketcher.Constraint("DistanceX", 0, 2, 0, 1, Q("0.25 in")),
    Sketcher.Constraint("DistanceY", 1, 2, 1, 1, Q("0.27 in")),
    Sketcher.Constraint("DistanceX", -1, 1, 0, 2, Q("2.12 in")),
    Sketcher.Constraint("DistanceY", 0, 2, -1, 1, Q("2.59 in")),
])
sketch16.setExpression("Constraints[8]", "Params.sketch16_width")
sketch16.setExpression("Constraints[9]", "Params.sketch16_height")
pocket10 = doc.addObject("PartDesign::Pocket", "Pocket009")
body.addObject(pocket10)
pocket10.Profile = sketch16
pocket10.Type = "ThroughAll"

doc.recompute()
